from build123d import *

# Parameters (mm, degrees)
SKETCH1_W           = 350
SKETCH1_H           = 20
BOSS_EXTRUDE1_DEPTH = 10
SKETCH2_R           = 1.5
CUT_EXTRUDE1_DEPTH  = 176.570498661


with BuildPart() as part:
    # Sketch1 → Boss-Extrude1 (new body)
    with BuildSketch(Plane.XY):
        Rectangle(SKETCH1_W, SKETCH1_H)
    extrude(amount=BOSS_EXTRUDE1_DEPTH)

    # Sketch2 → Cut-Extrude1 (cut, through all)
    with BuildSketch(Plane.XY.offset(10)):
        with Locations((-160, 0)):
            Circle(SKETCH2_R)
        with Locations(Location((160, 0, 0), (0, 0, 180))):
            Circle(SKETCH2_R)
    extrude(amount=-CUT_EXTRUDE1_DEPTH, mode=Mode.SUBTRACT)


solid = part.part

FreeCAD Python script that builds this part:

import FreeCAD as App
import Part
import Sketcher
from FreeCAD import Vector
Q = App.Units.Quantity

doc = App.newDocument("Part")
params = doc.addObject("Spreadsheet::Sheet", "Params")
for row, (alias, value) in enumerate([
    ("sketch1_width", "350 mm"),
    ("sketch1_height", "20 mm"),
    ("pad1_length", "10 mm"),
    ("sketch2_diameter", "3 mm"),
], start=1):
    params.set(f"A{row}", alias)
    params.set(f"B{row}", "=" + value)
    params.setAlias(f"B{row}", alias)

body = doc.addObject("PartDesign::Body", "Body")

# Sketch on XY plane
sketch1 = body.newObject("Sketcher::SketchObject", "Sketch")
sketch1.AttachmentSupport = (doc.getObject("XY_Plane"), [""])
sketch1.MapMode = "FlatFace"
sketch1.addGeometry(Part.LineSegment(Vector(-175, 10, 0), Vector(-175, -10, 0)), False)
sketch1.addGeometry(Part.LineSegment(Vector(-175, -10, 0), Vector(175, -10, 0)), False)
sketch1.addGeometry(Part.LineSegment(Vector(175, -10, 0), Vector(175, 10, 0)), False)
sketch1.addGeometry(Part.LineSegment(Vector(175, 10, 0), Vector(-175, 10, 0)), False)
sketch1.addConstraint(Sketcher.Constraint("Coincident", 0, 2, 1, 1))
sketch1.addConstraint(Sketcher.Constraint("Coincident", 1, 2, 2, 1))
sketch1.addConstraint(Sketcher.Constraint("Coincident", 2, 2, 3, 1))
sketch1.addConstraint(Sketcher.Constraint("Coincident", 3, 2, 0, 1))
sketch1.addConstraint(Sketcher.Constraint("Vertical", 0))
sketch1.addConstraint(Sketcher.Constraint("Horizontal", 1))
sketch1.addConstraint(Sketcher.Constraint("Vertical", 2))
sketch1.addConstraint(Sketcher.Constraint("Horizontal", 3))
sketch1.addConstraint(Sketcher.Constraint("Symmetric", 0, 2, 2, 2, -1, 1))
sketch1.addConstraint(Sketcher.Constraint("DistanceX", 1, 1, 1, 2, Q("350 mm")))
sketch1.addConstraint(Sketcher.Constraint("DistanceY", 0, 2, 0, 1, Q("20 mm")))
sketch1.setExpression("Constraints[9]", "Params.sketch1_width")
sketch1.setExpression("Constraints[10]", "Params.sketch1_height")
pad1 = body.newObject("PartDesign::Pad", "Pad")
pad1.Profile = sketch1
pad1.setExpression("Length", "Params.pad1_length")

# Sketch on XY plane
sketch2 = body.newObject("Sketcher::SketchObject", "Sketch001")
sketch2.AttachmentSupport = (doc.getObject("XY_Plane"), [""])
sketch2.MapMode = "FlatFace"
sketch2.AttachmentOffset = App.Placement(Vector(0, 0, 10), App.Rotation())
sketch2.addGeometry(Part.Circle(Vector(-160, 0, 0), Vector(0, 0, 1), 1.5), False)
sketch2.addGeometry(Part.Circle(Vector(160, 0, 0), Vector(0, 0, 1), 1.5), False)
sketch2.addConstraint(Sketcher.Constraint("Equal", 0, 1))
sketch2.addConstraint(Sketcher.Constraint("Symmetric", 0, 3, 1, 3, -1, 1))
sketch2.addConstraint(Sketcher.Constraint("PointOnObject", 0, 3, -1))
sketch2.addConstraint(Sketcher.Constraint("Diameter", 0, Q("3 mm")))
sketch2.addConstraint(Sketcher.Constraint("DistanceX", 0, 3, -1, 1, Q("160 mm")))
sketch2.setExpression("Constraints[3]", "Params.sketch2_diameter")
pocket1 = body.newObject("PartDesign::Pocket", "Pocket")
pocket1.Profile = sketch2
pocket1.Type = "ThroughAll"

doc.recompute()
